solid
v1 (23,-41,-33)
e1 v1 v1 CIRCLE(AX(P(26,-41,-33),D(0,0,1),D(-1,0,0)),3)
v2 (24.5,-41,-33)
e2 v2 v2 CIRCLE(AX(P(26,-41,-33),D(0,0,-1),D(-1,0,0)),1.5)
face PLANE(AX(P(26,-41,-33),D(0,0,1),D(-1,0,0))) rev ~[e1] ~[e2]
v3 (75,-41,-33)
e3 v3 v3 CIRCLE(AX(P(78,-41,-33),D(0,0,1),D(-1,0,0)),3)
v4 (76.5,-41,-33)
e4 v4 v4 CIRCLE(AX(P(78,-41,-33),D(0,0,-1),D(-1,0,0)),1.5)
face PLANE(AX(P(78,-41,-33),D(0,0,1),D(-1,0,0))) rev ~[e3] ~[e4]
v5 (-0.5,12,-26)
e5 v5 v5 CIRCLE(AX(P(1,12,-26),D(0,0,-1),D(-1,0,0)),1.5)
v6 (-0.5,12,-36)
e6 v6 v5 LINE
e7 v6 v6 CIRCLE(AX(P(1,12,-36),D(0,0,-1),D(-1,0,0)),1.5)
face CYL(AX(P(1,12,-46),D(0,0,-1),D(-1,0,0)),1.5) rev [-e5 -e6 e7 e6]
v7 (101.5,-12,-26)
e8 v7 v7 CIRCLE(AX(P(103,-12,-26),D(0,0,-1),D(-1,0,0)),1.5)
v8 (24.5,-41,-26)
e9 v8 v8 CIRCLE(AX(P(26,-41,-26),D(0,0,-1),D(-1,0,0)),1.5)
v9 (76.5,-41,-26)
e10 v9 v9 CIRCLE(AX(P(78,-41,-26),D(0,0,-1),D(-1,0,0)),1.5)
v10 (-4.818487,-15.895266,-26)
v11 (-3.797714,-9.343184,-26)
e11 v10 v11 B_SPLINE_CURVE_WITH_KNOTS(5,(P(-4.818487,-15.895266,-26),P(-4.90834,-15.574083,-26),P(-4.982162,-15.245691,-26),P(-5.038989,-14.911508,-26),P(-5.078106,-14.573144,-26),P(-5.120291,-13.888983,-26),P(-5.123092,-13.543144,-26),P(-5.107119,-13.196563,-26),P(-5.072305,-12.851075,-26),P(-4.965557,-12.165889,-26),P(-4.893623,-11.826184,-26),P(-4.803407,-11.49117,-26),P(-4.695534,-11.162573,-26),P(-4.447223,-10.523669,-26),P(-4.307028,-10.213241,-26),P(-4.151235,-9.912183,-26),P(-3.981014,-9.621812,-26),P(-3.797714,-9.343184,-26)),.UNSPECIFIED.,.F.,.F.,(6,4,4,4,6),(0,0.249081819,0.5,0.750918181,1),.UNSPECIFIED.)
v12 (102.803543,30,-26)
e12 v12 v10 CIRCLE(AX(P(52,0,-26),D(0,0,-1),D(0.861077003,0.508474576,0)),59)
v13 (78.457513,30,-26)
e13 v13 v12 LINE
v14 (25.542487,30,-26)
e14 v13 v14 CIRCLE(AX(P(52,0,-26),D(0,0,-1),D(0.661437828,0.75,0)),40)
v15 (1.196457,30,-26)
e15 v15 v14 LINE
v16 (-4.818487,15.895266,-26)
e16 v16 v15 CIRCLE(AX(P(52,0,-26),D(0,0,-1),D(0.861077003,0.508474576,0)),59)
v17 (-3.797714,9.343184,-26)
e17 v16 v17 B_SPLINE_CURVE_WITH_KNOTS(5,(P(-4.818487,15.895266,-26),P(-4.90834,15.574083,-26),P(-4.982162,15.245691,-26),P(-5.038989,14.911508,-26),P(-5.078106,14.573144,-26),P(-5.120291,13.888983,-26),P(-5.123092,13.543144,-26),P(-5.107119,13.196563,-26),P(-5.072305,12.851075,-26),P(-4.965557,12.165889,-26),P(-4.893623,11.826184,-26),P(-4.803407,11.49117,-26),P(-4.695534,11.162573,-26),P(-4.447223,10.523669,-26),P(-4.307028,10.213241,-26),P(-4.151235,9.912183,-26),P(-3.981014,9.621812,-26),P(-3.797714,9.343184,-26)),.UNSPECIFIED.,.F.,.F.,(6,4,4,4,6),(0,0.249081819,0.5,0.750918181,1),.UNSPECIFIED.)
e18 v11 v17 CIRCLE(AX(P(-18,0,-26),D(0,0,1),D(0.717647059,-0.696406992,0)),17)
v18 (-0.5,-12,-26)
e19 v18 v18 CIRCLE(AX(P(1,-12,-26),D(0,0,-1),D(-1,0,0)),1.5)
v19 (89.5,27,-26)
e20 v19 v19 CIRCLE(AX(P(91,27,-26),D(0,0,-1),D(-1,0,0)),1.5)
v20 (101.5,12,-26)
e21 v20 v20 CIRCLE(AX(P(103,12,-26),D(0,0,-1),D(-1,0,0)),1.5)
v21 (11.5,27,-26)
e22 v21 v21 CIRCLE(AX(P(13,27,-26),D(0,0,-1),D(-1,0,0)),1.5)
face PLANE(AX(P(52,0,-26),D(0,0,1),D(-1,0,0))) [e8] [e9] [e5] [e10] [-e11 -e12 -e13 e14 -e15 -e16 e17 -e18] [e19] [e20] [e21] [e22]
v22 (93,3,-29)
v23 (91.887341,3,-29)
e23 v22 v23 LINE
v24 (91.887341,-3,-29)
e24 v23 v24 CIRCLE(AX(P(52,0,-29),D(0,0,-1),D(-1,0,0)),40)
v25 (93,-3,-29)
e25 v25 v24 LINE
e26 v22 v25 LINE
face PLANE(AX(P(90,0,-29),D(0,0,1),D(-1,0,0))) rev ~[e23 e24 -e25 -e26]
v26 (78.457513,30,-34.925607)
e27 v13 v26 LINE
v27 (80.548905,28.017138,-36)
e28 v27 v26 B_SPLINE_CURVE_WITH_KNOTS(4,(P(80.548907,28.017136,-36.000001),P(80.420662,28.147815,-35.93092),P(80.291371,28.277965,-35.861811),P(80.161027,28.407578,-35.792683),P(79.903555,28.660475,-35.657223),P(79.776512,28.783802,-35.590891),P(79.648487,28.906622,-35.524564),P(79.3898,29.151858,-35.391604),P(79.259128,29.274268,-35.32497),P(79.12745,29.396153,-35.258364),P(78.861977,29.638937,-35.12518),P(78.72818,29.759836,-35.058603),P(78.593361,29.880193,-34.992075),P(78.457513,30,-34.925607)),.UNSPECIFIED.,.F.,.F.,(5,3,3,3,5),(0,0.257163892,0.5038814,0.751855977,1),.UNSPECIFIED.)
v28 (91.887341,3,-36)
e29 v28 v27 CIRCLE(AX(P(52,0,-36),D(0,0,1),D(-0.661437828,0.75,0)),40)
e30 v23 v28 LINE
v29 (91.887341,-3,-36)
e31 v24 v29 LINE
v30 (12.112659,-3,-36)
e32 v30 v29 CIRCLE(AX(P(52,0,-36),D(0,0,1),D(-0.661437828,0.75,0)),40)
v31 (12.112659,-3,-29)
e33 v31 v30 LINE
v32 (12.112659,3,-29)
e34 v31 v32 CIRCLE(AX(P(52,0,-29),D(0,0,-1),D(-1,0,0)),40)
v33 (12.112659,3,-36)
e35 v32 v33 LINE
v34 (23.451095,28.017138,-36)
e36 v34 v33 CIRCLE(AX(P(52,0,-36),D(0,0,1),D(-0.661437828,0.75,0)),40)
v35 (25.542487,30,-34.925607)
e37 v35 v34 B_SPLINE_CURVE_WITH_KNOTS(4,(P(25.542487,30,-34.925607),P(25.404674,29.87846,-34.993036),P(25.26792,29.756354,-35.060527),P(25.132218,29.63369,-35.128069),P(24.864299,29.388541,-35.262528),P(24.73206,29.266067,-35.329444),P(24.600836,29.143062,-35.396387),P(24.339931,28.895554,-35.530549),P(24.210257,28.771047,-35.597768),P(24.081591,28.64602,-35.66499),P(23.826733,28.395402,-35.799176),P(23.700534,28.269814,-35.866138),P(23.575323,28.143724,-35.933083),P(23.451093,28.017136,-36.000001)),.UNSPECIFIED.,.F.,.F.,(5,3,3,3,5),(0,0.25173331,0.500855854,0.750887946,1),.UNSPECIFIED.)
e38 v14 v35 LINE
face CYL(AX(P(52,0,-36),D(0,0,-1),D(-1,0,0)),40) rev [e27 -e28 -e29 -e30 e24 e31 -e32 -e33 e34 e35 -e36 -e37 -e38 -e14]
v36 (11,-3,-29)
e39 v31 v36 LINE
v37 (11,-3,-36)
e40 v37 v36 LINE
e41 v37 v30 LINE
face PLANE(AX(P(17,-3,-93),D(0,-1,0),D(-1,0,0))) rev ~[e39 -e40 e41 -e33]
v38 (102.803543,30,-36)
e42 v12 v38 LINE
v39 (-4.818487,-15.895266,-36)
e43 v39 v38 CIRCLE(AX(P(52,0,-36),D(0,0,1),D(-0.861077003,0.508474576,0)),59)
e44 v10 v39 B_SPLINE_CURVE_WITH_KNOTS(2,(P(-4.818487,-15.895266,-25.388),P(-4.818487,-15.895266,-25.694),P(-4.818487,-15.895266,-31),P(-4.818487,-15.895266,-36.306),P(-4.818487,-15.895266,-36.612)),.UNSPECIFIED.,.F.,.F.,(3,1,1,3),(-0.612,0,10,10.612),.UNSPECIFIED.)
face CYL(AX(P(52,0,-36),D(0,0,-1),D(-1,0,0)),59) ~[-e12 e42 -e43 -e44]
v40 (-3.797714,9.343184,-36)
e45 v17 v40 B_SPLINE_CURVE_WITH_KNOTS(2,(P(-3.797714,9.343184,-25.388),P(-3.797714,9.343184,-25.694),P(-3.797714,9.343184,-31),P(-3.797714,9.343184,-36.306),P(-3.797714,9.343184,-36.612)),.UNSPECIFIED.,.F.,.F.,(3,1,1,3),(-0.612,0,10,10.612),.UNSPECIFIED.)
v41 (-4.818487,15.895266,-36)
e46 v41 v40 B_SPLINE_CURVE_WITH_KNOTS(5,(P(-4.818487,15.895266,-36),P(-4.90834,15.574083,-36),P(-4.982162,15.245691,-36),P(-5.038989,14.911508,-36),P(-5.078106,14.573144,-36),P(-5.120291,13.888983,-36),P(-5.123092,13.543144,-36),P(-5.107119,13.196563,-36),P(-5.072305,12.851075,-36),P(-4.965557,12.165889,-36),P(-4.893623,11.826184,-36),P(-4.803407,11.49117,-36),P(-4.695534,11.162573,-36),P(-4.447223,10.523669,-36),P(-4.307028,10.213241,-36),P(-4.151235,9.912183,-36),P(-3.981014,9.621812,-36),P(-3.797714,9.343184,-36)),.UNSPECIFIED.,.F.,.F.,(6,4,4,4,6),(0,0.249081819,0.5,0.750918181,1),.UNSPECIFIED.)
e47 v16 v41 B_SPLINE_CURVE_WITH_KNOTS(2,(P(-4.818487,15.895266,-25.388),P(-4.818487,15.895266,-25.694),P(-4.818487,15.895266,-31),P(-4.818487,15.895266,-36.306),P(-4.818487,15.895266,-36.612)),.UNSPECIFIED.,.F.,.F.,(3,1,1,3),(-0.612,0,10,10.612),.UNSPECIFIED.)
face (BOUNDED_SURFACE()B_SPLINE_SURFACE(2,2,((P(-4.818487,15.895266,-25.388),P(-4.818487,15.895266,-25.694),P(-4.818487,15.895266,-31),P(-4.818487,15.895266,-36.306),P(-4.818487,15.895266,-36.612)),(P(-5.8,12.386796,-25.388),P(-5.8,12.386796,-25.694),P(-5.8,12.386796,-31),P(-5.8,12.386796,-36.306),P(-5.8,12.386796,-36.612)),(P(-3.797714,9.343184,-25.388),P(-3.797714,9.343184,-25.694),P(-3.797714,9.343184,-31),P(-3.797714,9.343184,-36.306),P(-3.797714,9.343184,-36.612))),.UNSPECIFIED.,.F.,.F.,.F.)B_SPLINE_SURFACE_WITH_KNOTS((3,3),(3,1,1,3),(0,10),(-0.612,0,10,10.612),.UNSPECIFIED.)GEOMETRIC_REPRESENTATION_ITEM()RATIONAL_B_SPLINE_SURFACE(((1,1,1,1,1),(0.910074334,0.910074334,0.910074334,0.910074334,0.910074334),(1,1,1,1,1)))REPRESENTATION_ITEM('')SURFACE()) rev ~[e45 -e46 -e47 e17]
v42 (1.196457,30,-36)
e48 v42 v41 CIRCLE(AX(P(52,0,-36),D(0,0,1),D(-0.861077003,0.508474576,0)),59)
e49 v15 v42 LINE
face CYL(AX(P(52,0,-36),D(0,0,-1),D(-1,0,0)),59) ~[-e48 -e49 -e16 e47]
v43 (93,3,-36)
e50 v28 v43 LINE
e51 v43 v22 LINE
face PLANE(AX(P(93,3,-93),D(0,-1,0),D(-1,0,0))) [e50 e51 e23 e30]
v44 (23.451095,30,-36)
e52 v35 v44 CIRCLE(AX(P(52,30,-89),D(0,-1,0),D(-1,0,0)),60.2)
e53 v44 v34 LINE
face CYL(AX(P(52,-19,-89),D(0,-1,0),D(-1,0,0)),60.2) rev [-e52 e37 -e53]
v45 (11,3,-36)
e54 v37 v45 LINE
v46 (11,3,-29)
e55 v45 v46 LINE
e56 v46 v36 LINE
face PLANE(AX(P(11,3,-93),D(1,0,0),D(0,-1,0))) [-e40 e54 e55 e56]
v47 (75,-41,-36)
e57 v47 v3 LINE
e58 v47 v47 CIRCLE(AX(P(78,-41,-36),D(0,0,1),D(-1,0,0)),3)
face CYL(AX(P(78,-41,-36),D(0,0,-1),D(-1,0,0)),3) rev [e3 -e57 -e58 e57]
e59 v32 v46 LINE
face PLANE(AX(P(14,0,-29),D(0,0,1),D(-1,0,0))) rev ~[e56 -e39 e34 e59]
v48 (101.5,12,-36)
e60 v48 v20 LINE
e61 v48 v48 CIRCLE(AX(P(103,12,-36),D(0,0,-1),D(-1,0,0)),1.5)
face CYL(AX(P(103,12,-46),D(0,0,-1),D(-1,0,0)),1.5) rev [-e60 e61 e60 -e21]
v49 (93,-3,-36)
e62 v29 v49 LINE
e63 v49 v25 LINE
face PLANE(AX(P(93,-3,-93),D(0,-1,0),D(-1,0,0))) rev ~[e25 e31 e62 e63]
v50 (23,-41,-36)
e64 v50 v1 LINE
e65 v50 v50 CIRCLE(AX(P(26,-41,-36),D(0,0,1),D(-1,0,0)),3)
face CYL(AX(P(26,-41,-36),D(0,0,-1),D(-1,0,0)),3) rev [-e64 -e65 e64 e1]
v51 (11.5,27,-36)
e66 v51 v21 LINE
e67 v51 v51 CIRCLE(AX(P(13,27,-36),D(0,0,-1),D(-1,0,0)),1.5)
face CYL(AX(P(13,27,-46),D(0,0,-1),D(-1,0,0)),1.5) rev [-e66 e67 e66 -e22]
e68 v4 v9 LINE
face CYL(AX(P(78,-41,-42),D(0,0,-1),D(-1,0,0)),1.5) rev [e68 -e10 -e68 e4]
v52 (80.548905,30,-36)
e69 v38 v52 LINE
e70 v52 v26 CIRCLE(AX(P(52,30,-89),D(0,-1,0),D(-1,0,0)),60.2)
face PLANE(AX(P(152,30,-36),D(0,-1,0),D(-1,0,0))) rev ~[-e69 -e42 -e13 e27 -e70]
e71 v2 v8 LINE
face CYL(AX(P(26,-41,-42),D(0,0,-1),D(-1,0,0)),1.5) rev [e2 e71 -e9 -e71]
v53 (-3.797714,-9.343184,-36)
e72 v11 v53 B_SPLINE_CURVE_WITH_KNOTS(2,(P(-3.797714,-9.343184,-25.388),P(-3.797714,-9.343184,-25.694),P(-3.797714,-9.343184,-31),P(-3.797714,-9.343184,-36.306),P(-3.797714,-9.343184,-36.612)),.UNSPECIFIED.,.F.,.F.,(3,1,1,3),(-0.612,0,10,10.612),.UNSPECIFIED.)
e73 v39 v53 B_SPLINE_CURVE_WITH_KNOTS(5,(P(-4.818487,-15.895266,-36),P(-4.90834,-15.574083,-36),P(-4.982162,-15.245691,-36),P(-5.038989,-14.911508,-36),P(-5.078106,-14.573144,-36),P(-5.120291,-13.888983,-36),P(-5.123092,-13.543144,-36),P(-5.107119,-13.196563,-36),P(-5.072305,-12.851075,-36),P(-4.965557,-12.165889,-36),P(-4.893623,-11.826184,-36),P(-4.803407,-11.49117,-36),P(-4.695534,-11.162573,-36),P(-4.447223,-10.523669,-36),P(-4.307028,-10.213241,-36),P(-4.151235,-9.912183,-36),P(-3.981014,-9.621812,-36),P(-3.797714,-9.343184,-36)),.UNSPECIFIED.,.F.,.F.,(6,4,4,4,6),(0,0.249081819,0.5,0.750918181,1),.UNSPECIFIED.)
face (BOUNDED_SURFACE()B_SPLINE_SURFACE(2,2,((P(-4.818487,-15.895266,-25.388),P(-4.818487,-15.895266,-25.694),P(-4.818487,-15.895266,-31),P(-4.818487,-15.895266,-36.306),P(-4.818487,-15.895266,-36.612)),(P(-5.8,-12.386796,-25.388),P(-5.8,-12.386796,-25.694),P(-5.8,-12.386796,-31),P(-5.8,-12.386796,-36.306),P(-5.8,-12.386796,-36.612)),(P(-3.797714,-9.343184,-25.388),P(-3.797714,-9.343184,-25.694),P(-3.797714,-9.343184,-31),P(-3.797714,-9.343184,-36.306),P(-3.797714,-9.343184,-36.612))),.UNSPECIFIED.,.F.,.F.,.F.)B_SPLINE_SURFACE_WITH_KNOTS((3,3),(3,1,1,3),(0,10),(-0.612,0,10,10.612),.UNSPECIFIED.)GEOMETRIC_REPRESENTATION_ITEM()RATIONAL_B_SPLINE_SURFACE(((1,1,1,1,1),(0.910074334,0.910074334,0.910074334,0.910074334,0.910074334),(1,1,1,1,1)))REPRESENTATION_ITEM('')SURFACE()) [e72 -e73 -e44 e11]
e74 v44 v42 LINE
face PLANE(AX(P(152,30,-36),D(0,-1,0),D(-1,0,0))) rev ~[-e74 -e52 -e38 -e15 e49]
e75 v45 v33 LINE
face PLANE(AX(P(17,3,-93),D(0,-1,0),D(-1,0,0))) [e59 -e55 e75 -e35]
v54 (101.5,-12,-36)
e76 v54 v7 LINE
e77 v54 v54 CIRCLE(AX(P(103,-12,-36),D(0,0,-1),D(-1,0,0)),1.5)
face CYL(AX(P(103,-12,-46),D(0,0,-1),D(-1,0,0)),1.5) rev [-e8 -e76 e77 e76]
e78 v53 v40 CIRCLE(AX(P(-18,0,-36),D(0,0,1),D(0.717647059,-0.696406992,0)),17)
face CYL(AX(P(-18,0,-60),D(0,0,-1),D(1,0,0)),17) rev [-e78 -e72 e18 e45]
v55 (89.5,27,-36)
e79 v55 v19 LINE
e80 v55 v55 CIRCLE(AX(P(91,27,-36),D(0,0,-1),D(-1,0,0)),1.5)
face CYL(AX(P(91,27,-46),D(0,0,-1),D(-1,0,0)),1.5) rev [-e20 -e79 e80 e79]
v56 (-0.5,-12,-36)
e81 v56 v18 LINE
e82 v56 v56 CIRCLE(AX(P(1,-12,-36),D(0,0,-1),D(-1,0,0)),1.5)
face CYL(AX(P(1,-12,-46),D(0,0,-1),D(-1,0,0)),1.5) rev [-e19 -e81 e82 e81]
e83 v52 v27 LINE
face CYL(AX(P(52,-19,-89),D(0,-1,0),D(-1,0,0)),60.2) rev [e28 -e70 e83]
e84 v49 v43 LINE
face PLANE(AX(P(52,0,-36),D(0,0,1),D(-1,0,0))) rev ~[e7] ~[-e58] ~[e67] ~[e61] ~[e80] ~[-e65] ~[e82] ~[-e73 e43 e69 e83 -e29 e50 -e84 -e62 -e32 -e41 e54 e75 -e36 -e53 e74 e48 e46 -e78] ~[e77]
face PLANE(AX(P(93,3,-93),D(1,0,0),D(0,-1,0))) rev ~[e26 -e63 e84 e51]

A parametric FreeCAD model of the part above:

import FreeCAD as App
import Part
import Sketcher
from FreeCAD import Vector


def edges_at(feature, points):
    """Names of the edges that pass closest to the given points."""
    edges = feature.Shape.Edges
    near = lambda p: min(range(len(edges)), key=lambda i: edges[i].distToShape(Part.Vertex(*p))[0])
    return sorted({f"Edge{near(p) + 1}" for p in points})

doc = App.newDocument("Part")
body = doc.addObject("PartDesign::Body", "Body")

# Sketch on XY plane
sketch1 = body.newObject("Sketcher::SketchObject", "Sketch")
sketch1.AttachmentSupport = (doc.getObject("XY_Plane"), [""])
sketch1.MapMode = "FlatFace"
sketch1.AttachmentOffset = App.Placement(Vector(0, 0, -60), App.Rotation())
sketch1.addGeometry(Part.Circle(Vector(-18, 0, 0), Vector(0, 0, 1), 17), False)
sketch1.addConstraint([
    Sketcher.Constraint("PointOnObject", 0, 3, -1),
    Sketcher.Constraint("Diameter", 0, 34.0),
    Sketcher.Constraint("DistanceX", 0, 3, -1, 1, 18.0),
])
pad1 = body.newObject("PartDesign::Pad", "Pad")
pad1.Profile = sketch1
pad1.Length = 160
body2 = doc.addObject("PartDesign::Body", "Body001")

# Sketch on XZ plane
sketch2 = body2.newObject("Sketcher::SketchObject", "Sketch001")
sketch2.AttachmentSupport = (doc.getObject("XZ_Plane001"), [""])
sketch2.MapMode = "FlatFace"
sketch2.AttachmentOffset = App.Placement(Vector(0, 0, -19), App.Rotation())
sketch2.addGeometry(Part.Circle(Vector(0, -53, 0), Vector(0, 0, 1), 60.2), False)
sketch2.addConstraint([
    Sketcher.Constraint("PointOnObject", 0, 3, -2),
    Sketcher.Constraint("Diameter", 0, 120.4),
    Sketcher.Constraint("DistanceY", 0, 3, -1, 1, 53.0),
])
pad2 = body2.newObject("PartDesign::Pad", "Pad001")
pad2.Profile = sketch2
pad2.Length = 58
body3 = doc.addObject("PartDesign::Body", "Body002")

# Sketch on XY plane
sketch3 = body3.newObject("Sketcher::SketchObject", "Sketch002")
sketch3.AttachmentSupport = (doc.getObject("XY_Plane002"), [""])
sketch3.MapMode = "FlatFace"
sketch3.AttachmentOffset = App.Placement(Vector(0, 0, -93), App.Rotation())
sketch3.addGeometry([
    Part.LineSegment(Vector(87, 3, 0), Vector(87, -3, 0)),
    Part.LineSegment(Vector(87, -3, 0), Vector(93, -3, 0)),
    Part.LineSegment(Vector(93, -3, 0), Vector(93, 3, 0)),
    Part.LineSegment(Vector(93, 3, 0), Vector(87, 3, 0)),
], False)
sketch3.addConstraint([
    Sketcher.Constraint("Coincident", 0, 2, 1, 1),
    Sketcher.Constraint("Coincident", 1, 2, 2, 1),
    Sketcher.Constraint("Coincident", 2, 2, 3, 1),
    Sketcher.Constraint("Coincident", 3, 2, 0, 1),
    Sketcher.Constraint("Vertical", 0),
    Sketcher.Constraint("Horizontal", 1),
    Sketcher.Constraint("Vertical", 2),
    Sketcher.Constraint("Horizontal", 3),
    Sketcher.Constraint("Equal", 3, 0),
    Sketcher.Constraint("DistanceX", 1, 1, 1, 2, 6.0),
    Sketcher.Constraint("DistanceX", -1, 1, 0, 2, 87.0),
    Sketcher.Constraint("DistanceY", 0, 2, -1, 1, 3.0),
])
pad3 = body3.newObject("PartDesign::Pad", "Pad002")
pad3.Profile = sketch3
pad3.Length = 64
body4 = doc.addObject("PartDesign::Body", "Body003")
body4.AllowCompound = True

# Sketch on XY plane
sketch4 = body4.newObject("Sketcher::SketchObject", "Sketch003")
sketch4.AttachmentSupport = (doc.getObject("XY_Plane003"), [""])
sketch4.MapMode = "FlatFace"
sketch4.AttachmentOffset = App.Placement(Vector(0, 0, -93), App.Rotation())
sketch4.addGeometry([
    Part.LineSegment(Vector(11, 3, 0), Vector(11, -3, 0)),
    Part.LineSegment(Vector(11, -3, 0), Vector(17, -3, 0)),
    Part.LineSegment(Vector(17, -3, 0), Vector(17, 3, 0)),
    Part.LineSegment(Vector(17, 3, 0), Vector(11, 3, 0)),
], False)
sketch4.addConstraint([
    Sketcher.Constraint("Coincident", 0, 2, 1, 1),
    Sketcher.Constraint("Coincident", 1, 2, 2, 1),
    Sketcher.Constraint("Coincident", 2, 2, 3, 1),
    Sketcher.Constraint("Coincident", 3, 2, 0, 1),
    Sketcher.Constraint("Vertical", 0),
    Sketcher.Constraint("Horizontal", 1),
    Sketcher.Constraint("Vertical", 2),
    Sketcher.Constraint("Horizontal", 3),
    Sketcher.Constraint("Equal", 3, 0),
    Sketcher.Constraint("DistanceX", 1, 1, 1, 2, 6.0),
    Sketcher.Constraint("DistanceX", -1, 1, 0, 2, 11.0),
    Sketcher.Constraint("DistanceY", 0, 2, -1, 1, 3.0),
])
pad4 = body4.newObject("PartDesign::Pad", "Pad003")
pad4.Profile = sketch4
pad4.Length = 64
doc.recompute()

boolean = body4.newObject("PartDesign::Boolean", "Boolean")
boolean.Type = "Fuse"
boolean.addObjects([body3])
body5 = doc.addObject("PartDesign::Body", "Body004")
body5.AllowCompound = True
doc.recompute()

body4.Placement = App.Placement(Vector(-52, 0, 36), App.Rotation(Vector(0, 0, 1), 0))
boolean2 = body5.newObject("PartDesign::Boolean", "Boolean001")
boolean2.Type = "Fuse"
boolean2.addObjects([body4])
body6 = doc.addObject("PartDesign::Body", "Body005")

# Sketch on XY plane
sketch5 = body6.newObject("Sketcher::SketchObject", "Sketch004")
sketch5.AttachmentSupport = (doc.getObject("XY_Plane005"), [""])
sketch5.MapMode = "FlatFace"
sketch5.AttachmentOffset = App.Placement(Vector(0, 0, -42), App.Rotation())
sketch5.addGeometry(Part.Circle(Vector(78, 41, 0), Vector(0, 0, 1), 3), False)
sketch5.addConstraint([
    Sketcher.Constraint("Diameter", 0, 6.0),
    Sketcher.Constraint("DistanceX", -1, 1, 0, 3, 78.0),
    Sketcher.Constraint("DistanceY", -1, 1, 0, 3, 41.0),
])
pad5 = body6.newObject("PartDesign::Pad", "Pad004")
pad5.Profile = sketch5
pad5.Length = 3
body7 = doc.addObject("PartDesign::Body", "Body006")
body7.AllowCompound = True

# Sketch on XY plane
sketch6 = body7.newObject("Sketcher::SketchObject", "Sketch005")
sketch6.AttachmentSupport = (doc.getObject("XY_Plane006"), [""])
sketch6.MapMode = "FlatFace"
sketch6.AttachmentOffset = App.Placement(Vector(0, 0, -42), App.Rotation())
sketch6.addGeometry(Part.Circle(Vector(26, 41, 0), Vector(0, 0, 1), 3), False)
sketch6.addConstraint([
    Sketcher.Constraint("Diameter", 0, 6.0),
    Sketcher.Constraint("DistanceX", -1, 1, 0, 3, 26.0),
    Sketcher.Constraint("DistanceY", -1, 1, 0, 3, 41.0),
])
pad6 = body7.newObject("PartDesign::Pad", "Pad005")
pad6.Profile = sketch6
pad6.Length = 3
doc.recompute()

boolean3 = body7.newObject("PartDesign::Boolean", "Boolean002")
boolean3.Type = "Fuse"
boolean3.addObjects([body6])
body8 = doc.addObject("PartDesign::Body", "Body007")
body8.AllowCompound = True
doc.recompute()

body7.Placement = App.Placement(Vector(-52, 0, 42), App.Rotation(Vector(0, 0, 1), 0))
boolean4 = body8.newObject("PartDesign::Boolean", "Boolean003")
boolean4.Type = "Fuse"
boolean4.addObjects([body7])
body9 = doc.addObject("PartDesign::Body", "Body008")

# Sketch on XY plane
sketch7 = body9.newObject("Sketcher::SketchObject", "Sketch006")
sketch7.AttachmentSupport = (doc.getObject("XY_Plane008"), [""])
sketch7.MapMode = "FlatFace"
sketch7.AttachmentOffset = App.Placement(Vector(0, 0, -42), App.Rotation())
sketch7.addGeometry(Part.Circle(Vector(78, 41, 0), Vector(0, 0, 1), 1.5), False)
sketch7.addConstraint([
    Sketcher.Constraint("Diameter", 0, 3.0),
    Sketcher.Constraint("DistanceX", -1, 1, 0, 3, 78.0),
    Sketcher.Constraint("DistanceY", -1, 1, 0, 3, 41.0),
])
pad7 = body9.newObject("PartDesign::Pad", "Pad006")
pad7.Profile = sketch7
pad7.Length = 32
body10 = doc.addObject("PartDesign::Body", "Body009")
body10.AllowCompound = True

# Sketch on XY plane
sketch8 = body10.newObject("Sketcher::SketchObject", "Sketch007")
sketch8.AttachmentSupport = (doc.getObject("XY_Plane009"), [""])
sketch8.MapMode = "FlatFace"
sketch8.AttachmentOffset = App.Placement(Vector(0, 0, -42), App.Rotation())
sketch8.addGeometry(Part.Circle(Vector(26, 41, 0), Vector(0, 0, 1), 1.5), False)
sketch8.addConstraint([
    Sketcher.Constraint("Diameter", 0, 3.0),
    Sketcher.Constraint("DistanceX", -1, 1, 0, 3, 26.0),
    Sketcher.Constraint("DistanceY", -1, 1, 0, 3, 41.0),
])
pad8 = body10.newObject("PartDesign::Pad", "Pad007")
pad8.Profile = sketch8
pad8.Length = 32
doc.recompute()

boolean5 = body10.newObject("PartDesign::Boolean", "Boolean004")
boolean5.Type = "Fuse"
boolean5.addObjects([body9])
body11 = doc.addObject("PartDesign::Body", "Body010")
body11.AllowCompound = True
doc.recompute()

body10.Placement = App.Placement(Vector(-52, 0, 36), App.Rotation(Vector(0, 0, 1), 0))
boolean6 = body11.newObject("PartDesign::Boolean", "Boolean005")
boolean6.Type = "Fuse"
boolean6.addObjects([body10])
body12 = doc.addObject("PartDesign::Body", "Body011")

# Sketch on XY plane
sketch9 = body12.newObject("Sketcher::SketchObject", "Sketch008")
sketch9.AttachmentSupport = (doc.getObject("XY_Plane011"), [""])
sketch9.MapMode = "FlatFace"
sketch9.AttachmentOffset = App.Placement(Vector(0, 0, -60), App.Rotation())
sketch9.addGeometry(Part.Circle(Vector(14, 0, 0), Vector(0, 0, 1), 1.5), False)
sketch9.addConstraint([
    Sketcher.Constraint("PointOnObject", 0, 3, -1),
    Sketcher.Constraint("Diameter", 0, 3.0),
    Sketcher.Constraint("DistanceX", -1, 1, 0, 3, 14.0),
])
pad9 = body12.newObject("PartDesign::Pad", "Pad008")
pad9.Profile = sketch9
pad9.Length = 100
body13 = doc.addObject("PartDesign::Body", "Body012")
body13.AllowCompound = True

# Sketch on XY plane
sketch10 = body13.newObject("Sketcher::SketchObject", "Sketch009")
sketch10.AttachmentSupport = (doc.getObject("XY_Plane012"), [""])
sketch10.MapMode = "FlatFace"
sketch10.AttachmentOffset = App.Placement(Vector(0, 0, -60), App.Rotation())
sketch10.addGeometry(Part.Circle(Vector(90, 0, 0), Vector(0, 0, 1), 1.5), False)
sketch10.addConstraint([
    Sketcher.Constraint("PointOnObject", 0, 3, -1),
    Sketcher.Constraint("Diameter", 0, 3.0),
    Sketcher.Constraint("DistanceX", -1, 1, 0, 3, 90.0),
])
pad10 = body13.newObject("PartDesign::Pad", "Pad009")
pad10.Profile = sketch10
pad10.Length = 100
doc.recompute()

boolean7 = body13.newObject("PartDesign::Boolean", "Boolean006")
boolean7.Type = "Fuse"
boolean7.addObjects([body12])
body14 = doc.addObject("PartDesign::Body", "Body013")
body14.AllowCompound = True
doc.recompute()

body13.Placement = App.Placement(Vector(-52, 0, 0), App.Rotation(Vector(0, 0, 1), 0))
boolean8 = body14.newObject("PartDesign::Boolean", "Boolean007")
boolean8.Type = "Fuse"
boolean8.addObjects([body13])
doc.recompute()

boolean9 = body14.newObject("PartDesign::Boolean", "Boolean008")
boolean9.Type = "Fuse"
boolean9.addObjects([body11])
body15 = doc.addObject("PartDesign::Body", "Body014")

# Sketch on XY plane
sketch11 = body15.newObject("Sketcher::SketchObject", "Sketch010")
sketch11.AttachmentSupport = (doc.getObject("XY_Plane014"), [""])
sketch11.MapMode = "FlatFace"
sketch11.addGeometry(Part.Circle(Vector(-51, 6, 0), Vector(0, 0, 1), 1.5), False)
sketch11.addConstraint([
    Sketcher.Constraint("Diameter", 0, 3.0),
    Sketcher.Constraint("DistanceX", 0, 3, -1, 1, 51.0),
    Sketcher.Constraint("DistanceY", -1, 1, 0, 3, 6.0),
])
pad11 = body15.newObject("PartDesign::Pad", "Pad010")
pad11.Profile = sketch11
pad11.Length = 50
body16 = doc.addObject("PartDesign::Body", "Body015")

# Sketch on XY plane
sketch12 = body16.newObject("Sketcher::SketchObject", "Sketch011")
sketch12.AttachmentSupport = (doc.getObject("XY_Plane015"), [""])
sketch12.MapMode = "FlatFace"
sketch12.addGeometry(Part.Circle(Vector(-24, 18, 0), Vector(0, 0, 1), 1.5), False)
sketch12.addConstraint([
    Sketcher.Constraint("Diameter", 0, 3.0),
    Sketcher.Constraint("DistanceX", 0, 3, -1, 1, 24.0),
    Sketcher.Constraint("DistanceY", -1, 1, 0, 3, 18.0),
])
pad12 = body16.newObject("PartDesign::Pad", "Pad011")
pad12.Profile = sketch12
pad12.Length = 50
body17 = doc.addObject("PartDesign::Body", "Body016")

# Sketch on XY plane
sketch13 = body17.newObject("Sketcher::SketchObject", "Sketch012")
sketch13.AttachmentSupport = (doc.getObject("XY_Plane016"), [""])
sketch13.MapMode = "FlatFace"
sketch13.addGeometry(Part.Circle(Vector(24, 18, 0), Vector(0, 0, 1), 1.5), False)
sketch13.addConstraint([
    Sketcher.Constraint("Diameter", 0, 3.0),
    Sketcher.Constraint("DistanceX", -1, 1, 0, 3, 24.0),
    Sketcher.Constraint("DistanceY", -1, 1, 0, 3, 18.0),
])
pad13 = body17.newObject("PartDesign::Pad", "Pad012")
pad13.Profile = sketch13
pad13.Length = 50
body18 = doc.addObject("PartDesign::Body", "Body017")
body18.AllowCompound = True

# Sketch on XY plane
sketch14 = body18.newObject("Sketcher::SketchObject", "Sketch013")
sketch14.AttachmentSupport = (doc.getObject("XY_Plane017"), [""])
sketch14.MapMode = "FlatFace"
sketch14.addGeometry(Part.Circle(Vector(51, 6, 0), Vector(0, 0, 1), 1.5), False)
sketch14.addConstraint([
    Sketcher.Constraint("Diameter", 0, 3.0),
    Sketcher.Constraint("DistanceX", -1, 1, 0, 3, 51.0),
    Sketcher.Constraint("DistanceY", -1, 1, 0, 3, 6.0),
])
pad14 = body18.newObject("PartDesign::Pad", "Pad013")
pad14.Profile = sketch14
pad14.Length = 50
doc.recompute()

boolean10 = body18.newObject("PartDesign::Boolean", "Boolean009")
boolean10.Type = "Fuse"
boolean10.addObjects([body15])
doc.recompute()

boolean11 = body18.newObject("PartDesign::Boolean", "Boolean010")
boolean11.Type = "Fuse"
boolean11.addObjects([body16])
doc.recompute()

boolean12 = body18.newObject("PartDesign::Boolean", "Boolean011")
boolean12.Type = "Fuse"
boolean12.addObjects([body17])
body19 = doc.addObject("PartDesign::Body", "Body018")
body19.AllowCompound = True
doc.recompute()

body18.Placement = App.Placement(Vector(0, 6, 0), App.Rotation(Vector(0, 0, 1), 0))
boolean13 = body19.newObject("PartDesign::Boolean", "Boolean012")
boolean13.Type = "Fuse"
boolean13.addObjects([body18])
body20 = doc.addObject("PartDesign::Body", "Body019")

# Sketch on XY plane
sketch15 = body20.newObject("Sketcher::SketchObject", "Sketch014")
sketch15.AttachmentSupport = (doc.getObject("XY_Plane019"), [""])
sketch15.MapMode = "FlatFace"
sketch15.addGeometry(Part.Circle(Vector(51, -12, 0), Vector(0, 0, 1), 1.5), False)
sketch15.addConstraint([
    Sketcher.Constraint("Diameter", 0, 3.0),
    Sketcher.Constraint("DistanceX", -1, 1, 0, 3, 51.0),
    Sketcher.Constraint("DistanceY", 0, 3, -1, 1, 12.0),
])
pad15 = body20.newObject("PartDesign::Pad", "Pad014")
pad15.Profile = sketch15
pad15.Length = 100
body21 = doc.addObject("PartDesign::Body", "Body020")
body21.AllowCompound = True

# Sketch on XY plane
sketch16 = body21.newObject("Sketcher::SketchObject", "Sketch015")
sketch16.AttachmentSupport = (doc.getObject("XY_Plane020"), [""])
sketch16.MapMode = "FlatFace"
sketch16.addGeometry(Part.Circle(Vector(-51, -12, 0), Vector(0, 0, 1), 1.5), False)
sketch16.addConstraint([
    Sketcher.Constraint("Diameter", 0, 3.0),
    Sketcher.Constraint("DistanceX", 0, 3, -1, 1, 51.0),
    Sketcher.Constraint("DistanceY", 0, 3, -1, 1, 12.0),
])
pad16 = body21.newObject("PartDesign::Pad", "Pad015")
pad16.Profile = sketch16
pad16.Length = 100
doc.recompute()

boolean14 = body21.newObject("PartDesign::Boolean", "Boolean013")
boolean14.Type = "Fuse"
boolean14.addObjects([body20])
body22 = doc.addObject("PartDesign::Body", "Body021")

# Sketch on XY plane
sketch17 = body22.newObject("Sketcher::SketchObject", "Sketch016")
sketch17.AttachmentSupport = (doc.getObject("XY_Plane021"), [""])
sketch17.MapMode = "FlatFace"
sketch17.addGeometry(Part.Circle(Vector(39, -21, 0), Vector(0, 0, 1), 1.5), False)
sketch17.addConstraint([
    Sketcher.Constraint("Diameter", 0, 3.0),
    Sketcher.Constraint("DistanceX", -1, 1, 0, 3, 39.0),
    Sketcher.Constraint("DistanceY", 0, 3, -1, 1, 21.0),
])
pad17 = body22.newObject("PartDesign::Pad", "Pad016")
pad17.Profile = sketch17
pad17.Length = 100
body23 = doc.addObject("PartDesign::Body", "Body022")
body23.AllowCompound = True

# Sketch on XY plane
sketch18 = body23.newObject("Sketcher::SketchObject", "Sketch017")
sketch18.AttachmentSupport = (doc.getObject("XY_Plane022"), [""])
sketch18.MapMode = "FlatFace"
sketch18.addGeometry(Part.Circle(Vector(-39, -21, 0), Vector(0, 0, 1), 1.5), False)
sketch18.addConstraint([
    Sketcher.Constraint("Diameter", 0, 3.0),
    Sketcher.Constraint("DistanceX", 0, 3, -1, 1, 39.0),
    Sketcher.Constraint("DistanceY", 0, 3, -1, 1, 21.0),
])
pad18 = body23.newObject("PartDesign::Pad", "Pad017")
pad18.Profile = sketch18
pad18.Length = 100
doc.recompute()

boolean15 = body23.newObject("PartDesign::Boolean", "Boolean014")
boolean15.Type = "Fuse"
boolean15.addObjects([body22])
body24 = doc.addObject("PartDesign::Body", "Body023")
body24.AllowCompound = True
doc.recompute()

body23.Placement = App.Placement(Vector(0, -6, 0), App.Rotation(Vector(0, 0, 1), 0))
boolean16 = body24.newObject("PartDesign::Boolean", "Boolean015")
boolean16.Type = "Fuse"
boolean16.addObjects([body23])
doc.recompute()

boolean17 = body24.newObject("PartDesign::Boolean", "Boolean016")
boolean17.Type = "Fuse"
boolean17.addObjects([body19])
doc.recompute()

boolean18 = body24.newObject("PartDesign::Boolean", "Boolean017")
boolean18.Type = "Fuse"
boolean18.addObjects([body21])
body25 = doc.addObject("PartDesign::Body", "Body024")
body25.AllowCompound = True
doc.recompute()

body24.Placement = App.Placement(Vector(0, 0, -10), App.Rotation(Vector(0, 0, 1), 0))
boolean19 = body25.newObject("PartDesign::Boolean", "Boolean018")
boolean19.Type = "Fuse"
boolean19.addObjects([body24])
body26 = doc.addObject("PartDesign::Body", "Body025")

# Sketch on XY plane
sketch19 = body26.newObject("Sketcher::SketchObject", "Sketch018")
sketch19.AttachmentSupport = (doc.getObject("XY_Plane025"), [""])
sketch19.MapMode = "FlatFace"
sketch19.addGeometry([
    Part.LineSegment(Vector(-100, -30, 0), Vector(-100, -130, 0)),
    Part.LineSegment(Vector(-100, -130, 0), Vector(100, -130, 0)),
    Part.LineSegment(Vector(100, -130, 0), Vector(100, -30, 0)),
    Part.LineSegment(Vector(100, -30, 0), Vector(-100, -30, 0)),
], False)
sketch19.addConstraint([
    Sketcher.Constraint("Coincident", 0, 2, 1, 1),
    Sketcher.Constraint("Coincident", 1, 2, 2, 1),
    Sketcher.Constraint("Coincident", 2, 2, 3, 1),
    Sketcher.Constraint("Coincident", 3, 2, 0, 1),
    Sketcher.Constraint("Vertical", 0),
    Sketcher.Constraint("Horizontal", 1),
    Sketcher.Constraint("Vertical", 2),
    Sketcher.Constraint("Horizontal", 3),
    Sketcher.Constraint("DistanceX", 1, 1, 1, 2, 200.0),
    Sketcher.Constraint("DistanceY", 0, 2, 0, 1, 100.0),
    Sketcher.Constraint("DistanceX", 0, 2, -1, 1, 100.0),
    Sketcher.Constraint("DistanceY", 0, 2, -1, 1, 130.0),
])
pad19 = body26.newObject("PartDesign::Pad", "Pad018")
pad19.Profile = sketch19
pad19.Length = 32
body27 = doc.addObject("PartDesign::Body", "Body026")

# Sketch on XY plane
sketch20 = body27.newObject("Sketcher::SketchObject", "Sketch019")
sketch20.AttachmentSupport = (doc.getObject("XY_Plane026"), [""])
sketch20.MapMode = "FlatFace"
sketch20.addGeometry([
    Part.Circle(Vector(0, 0, 0), Vector(0, 0, 1), 59),
    Part.Circle(Vector(0, 0, 0), Vector(0, 0, 1), 40),
], False)
sketch20.addConstraint([
    Sketcher.Constraint("Coincident", 0, 3, -1, 1),
    Sketcher.Constraint("Coincident", 1, 3, -1, 1),
    Sketcher.Constraint("Diameter", 0, 118.0),
    Sketcher.Constraint("Diameter", 1, 80.0),
])
pad20 = body27.newObject("PartDesign::Pad", "Pad019")
pad20.Profile = sketch20
pad20.Length = 10
doc.recompute()

boolean20 = body27.newObject("PartDesign::Boolean", "Boolean019")
boolean20.Type = "Cut"
boolean20.addObjects([body26])
doc.recompute()

boolean21 = body27.newObject("PartDesign::Boolean", "Boolean020")
boolean21.Type = "Cut"
boolean21.addObjects([body25])
doc.recompute()

boolean22 = body27.newObject("PartDesign::Boolean", "Boolean021")
boolean22.Type = "Cut"
boolean22.addObjects([body14])
doc.recompute()

boolean23 = body27.newObject("PartDesign::Boolean", "Boolean022")
boolean23.Type = "Cut"
boolean23.addObjects([body8])
doc.recompute()

boolean24 = body27.newObject("PartDesign::Boolean", "Boolean023")
boolean24.Type = "Cut"
boolean24.addObjects([body5])
doc.recompute()

boolean25 = body27.newObject("PartDesign::Boolean", "Boolean024")
boolean25.Type = "Cut"
boolean25.addObjects([body2])
body28 = doc.addObject("PartDesign::Body", "Body027")
doc.recompute()

body27.Placement = App.Placement(Vector(52, 0, -36), App.Rotation(Vector(0, 0, 1), 180))
boolean26 = body28.newObject("PartDesign::Boolean", "Boolean025")
boolean26.Type = "Fuse"
boolean26.addObjects([body27])
doc.recompute()

boolean27 = body28.newObject("PartDesign::Boolean", "Boolean026")
boolean27.Type = "Cut"
boolean27.addObjects([body])
doc.recompute()

fillet = body28.newObject("PartDesign::Fillet", "Fillet")
fillet.Base = (boolean27, edges_at(boolean27, [(-5.8, 11.839, -31), (-5.8, -11.839, -31)]))
fillet.Radius = 8

doc.recompute()
